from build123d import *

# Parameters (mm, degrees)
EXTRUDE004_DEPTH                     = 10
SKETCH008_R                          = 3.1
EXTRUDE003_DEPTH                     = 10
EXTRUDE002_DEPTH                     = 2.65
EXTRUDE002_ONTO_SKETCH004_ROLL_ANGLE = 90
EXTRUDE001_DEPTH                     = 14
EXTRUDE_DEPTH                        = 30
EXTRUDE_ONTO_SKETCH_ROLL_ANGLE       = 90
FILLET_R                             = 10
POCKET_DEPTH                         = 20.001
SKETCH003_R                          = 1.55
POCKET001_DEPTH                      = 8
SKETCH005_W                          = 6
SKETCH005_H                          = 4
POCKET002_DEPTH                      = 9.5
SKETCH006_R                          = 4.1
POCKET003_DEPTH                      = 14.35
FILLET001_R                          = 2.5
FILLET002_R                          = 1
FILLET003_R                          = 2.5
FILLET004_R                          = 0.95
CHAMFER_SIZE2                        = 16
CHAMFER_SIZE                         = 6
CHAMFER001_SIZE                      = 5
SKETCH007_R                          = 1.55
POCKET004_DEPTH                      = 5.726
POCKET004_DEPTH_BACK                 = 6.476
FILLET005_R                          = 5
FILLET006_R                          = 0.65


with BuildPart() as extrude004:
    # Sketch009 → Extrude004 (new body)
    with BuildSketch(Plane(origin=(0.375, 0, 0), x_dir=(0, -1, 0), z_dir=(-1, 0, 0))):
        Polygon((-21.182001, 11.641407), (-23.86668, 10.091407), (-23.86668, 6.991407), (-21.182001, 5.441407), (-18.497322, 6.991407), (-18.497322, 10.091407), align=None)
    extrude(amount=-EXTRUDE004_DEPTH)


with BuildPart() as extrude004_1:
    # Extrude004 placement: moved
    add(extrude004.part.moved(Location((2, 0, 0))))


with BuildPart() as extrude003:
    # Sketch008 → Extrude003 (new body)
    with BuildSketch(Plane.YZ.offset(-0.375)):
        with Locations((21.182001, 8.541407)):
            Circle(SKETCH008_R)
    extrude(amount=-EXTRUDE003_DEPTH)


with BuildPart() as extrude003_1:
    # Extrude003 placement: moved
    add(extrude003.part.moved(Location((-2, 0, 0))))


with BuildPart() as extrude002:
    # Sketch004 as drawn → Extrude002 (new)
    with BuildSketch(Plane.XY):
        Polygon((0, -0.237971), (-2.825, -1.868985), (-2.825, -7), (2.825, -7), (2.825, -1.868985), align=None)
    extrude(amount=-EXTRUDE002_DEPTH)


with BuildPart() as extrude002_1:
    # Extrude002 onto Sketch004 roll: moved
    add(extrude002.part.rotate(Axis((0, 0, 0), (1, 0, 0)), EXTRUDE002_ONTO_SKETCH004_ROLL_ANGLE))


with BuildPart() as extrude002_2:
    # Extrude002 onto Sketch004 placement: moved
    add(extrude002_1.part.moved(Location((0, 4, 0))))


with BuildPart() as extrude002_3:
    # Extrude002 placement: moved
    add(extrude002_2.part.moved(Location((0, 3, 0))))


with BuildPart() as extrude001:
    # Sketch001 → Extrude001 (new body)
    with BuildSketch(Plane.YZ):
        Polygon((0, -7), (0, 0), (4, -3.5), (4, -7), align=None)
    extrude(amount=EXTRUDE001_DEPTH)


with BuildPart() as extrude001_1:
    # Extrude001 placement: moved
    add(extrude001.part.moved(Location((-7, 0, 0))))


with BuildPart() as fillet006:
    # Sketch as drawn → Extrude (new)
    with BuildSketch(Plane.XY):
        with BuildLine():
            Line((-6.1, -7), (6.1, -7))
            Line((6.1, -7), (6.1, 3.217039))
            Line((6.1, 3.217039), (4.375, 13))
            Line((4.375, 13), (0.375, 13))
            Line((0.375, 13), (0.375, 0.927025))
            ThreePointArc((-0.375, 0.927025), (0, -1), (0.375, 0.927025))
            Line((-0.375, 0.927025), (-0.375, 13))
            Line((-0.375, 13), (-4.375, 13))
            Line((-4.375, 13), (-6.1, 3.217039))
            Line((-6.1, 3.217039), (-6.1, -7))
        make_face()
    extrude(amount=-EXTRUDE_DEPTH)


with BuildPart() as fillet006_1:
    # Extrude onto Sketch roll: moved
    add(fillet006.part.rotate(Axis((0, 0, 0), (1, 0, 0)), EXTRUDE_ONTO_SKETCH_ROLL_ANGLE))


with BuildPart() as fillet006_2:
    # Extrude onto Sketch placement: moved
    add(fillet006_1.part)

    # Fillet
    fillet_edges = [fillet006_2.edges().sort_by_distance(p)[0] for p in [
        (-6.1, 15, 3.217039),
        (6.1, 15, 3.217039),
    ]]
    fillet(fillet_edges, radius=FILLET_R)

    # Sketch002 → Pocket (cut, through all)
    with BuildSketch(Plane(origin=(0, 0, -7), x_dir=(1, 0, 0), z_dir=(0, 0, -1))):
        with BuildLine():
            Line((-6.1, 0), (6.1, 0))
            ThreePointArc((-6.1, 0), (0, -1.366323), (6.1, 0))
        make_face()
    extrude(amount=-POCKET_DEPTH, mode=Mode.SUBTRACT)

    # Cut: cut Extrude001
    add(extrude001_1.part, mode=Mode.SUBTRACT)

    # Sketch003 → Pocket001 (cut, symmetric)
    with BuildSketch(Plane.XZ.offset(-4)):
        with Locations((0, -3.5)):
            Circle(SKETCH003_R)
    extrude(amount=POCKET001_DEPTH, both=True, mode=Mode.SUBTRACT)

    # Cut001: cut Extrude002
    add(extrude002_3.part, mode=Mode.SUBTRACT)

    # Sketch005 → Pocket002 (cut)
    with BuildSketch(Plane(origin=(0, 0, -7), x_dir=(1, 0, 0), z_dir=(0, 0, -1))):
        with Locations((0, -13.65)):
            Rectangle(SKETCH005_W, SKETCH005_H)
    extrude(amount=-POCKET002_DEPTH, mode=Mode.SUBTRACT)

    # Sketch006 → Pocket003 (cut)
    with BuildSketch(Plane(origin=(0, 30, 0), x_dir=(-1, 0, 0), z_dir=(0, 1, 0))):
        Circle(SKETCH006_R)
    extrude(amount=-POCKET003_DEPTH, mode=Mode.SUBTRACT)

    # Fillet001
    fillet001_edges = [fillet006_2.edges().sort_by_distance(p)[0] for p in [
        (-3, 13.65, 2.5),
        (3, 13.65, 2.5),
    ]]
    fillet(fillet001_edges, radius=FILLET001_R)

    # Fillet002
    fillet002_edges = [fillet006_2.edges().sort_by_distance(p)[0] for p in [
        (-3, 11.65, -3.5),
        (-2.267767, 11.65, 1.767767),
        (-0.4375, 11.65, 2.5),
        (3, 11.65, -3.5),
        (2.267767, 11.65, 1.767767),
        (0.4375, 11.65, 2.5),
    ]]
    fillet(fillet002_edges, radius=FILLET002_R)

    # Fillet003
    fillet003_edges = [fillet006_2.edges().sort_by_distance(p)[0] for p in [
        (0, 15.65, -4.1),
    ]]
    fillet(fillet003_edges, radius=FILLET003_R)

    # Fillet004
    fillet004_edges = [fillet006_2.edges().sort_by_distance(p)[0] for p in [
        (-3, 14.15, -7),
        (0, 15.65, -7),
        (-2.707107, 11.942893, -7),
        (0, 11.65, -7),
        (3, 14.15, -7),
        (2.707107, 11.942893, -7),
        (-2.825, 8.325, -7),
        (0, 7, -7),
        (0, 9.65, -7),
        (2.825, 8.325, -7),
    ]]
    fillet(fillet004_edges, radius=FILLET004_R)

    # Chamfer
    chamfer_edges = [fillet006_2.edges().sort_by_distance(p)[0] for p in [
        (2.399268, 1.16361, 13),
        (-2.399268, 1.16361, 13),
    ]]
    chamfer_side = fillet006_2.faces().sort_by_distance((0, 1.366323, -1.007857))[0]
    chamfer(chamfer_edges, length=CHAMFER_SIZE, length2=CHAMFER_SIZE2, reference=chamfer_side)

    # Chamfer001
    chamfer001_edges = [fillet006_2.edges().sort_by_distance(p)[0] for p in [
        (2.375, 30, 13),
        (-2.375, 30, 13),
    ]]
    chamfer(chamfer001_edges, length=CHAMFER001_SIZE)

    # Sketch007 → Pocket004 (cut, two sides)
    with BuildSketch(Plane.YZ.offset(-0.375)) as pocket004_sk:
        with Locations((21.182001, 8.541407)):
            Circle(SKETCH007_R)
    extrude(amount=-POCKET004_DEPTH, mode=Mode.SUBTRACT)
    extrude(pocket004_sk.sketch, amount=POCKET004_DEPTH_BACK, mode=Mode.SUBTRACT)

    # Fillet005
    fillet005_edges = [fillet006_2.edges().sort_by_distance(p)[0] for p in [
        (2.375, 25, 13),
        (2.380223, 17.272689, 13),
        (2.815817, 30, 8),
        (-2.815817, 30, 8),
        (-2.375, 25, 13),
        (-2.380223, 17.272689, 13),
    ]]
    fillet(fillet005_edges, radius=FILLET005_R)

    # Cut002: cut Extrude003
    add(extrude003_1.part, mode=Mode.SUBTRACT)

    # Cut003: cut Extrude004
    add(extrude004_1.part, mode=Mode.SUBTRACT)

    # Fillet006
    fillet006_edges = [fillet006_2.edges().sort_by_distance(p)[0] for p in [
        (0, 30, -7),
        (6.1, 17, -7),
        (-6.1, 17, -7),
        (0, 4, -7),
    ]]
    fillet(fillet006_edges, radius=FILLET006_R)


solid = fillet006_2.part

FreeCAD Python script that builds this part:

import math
import FreeCAD as App
import Part
import Sketcher

V = App.Vector
Q = App.Units.Quantity


def edges_at(feature, points):
    """Names of the edges that pass closest to the given points."""
    edges = feature.Shape.Edges
    near = lambda p: min(range(len(edges)), key=lambda i: edges[i].distToShape(Part.Vertex(*p))[0])
    return sorted({f"Edge{near(p) + 1}" for p in points})

doc = App.newDocument("Part")
body = doc.addObject("PartDesign::Body", "Body")

# Sketch on YZ plane
sketch1 = body.newObject("Sketcher::SketchObject", "Sketch")
sketch1.AttachmentSupport = (doc.getObject("YZ_Plane"), [""])
sketch1.MapMode = "FlatFace"
sketch1.AttachmentOffset = App.Placement(V(0, 0, 0.375), App.Rotation())
sketch1.addGeometry(Part.LineSegment(V(21.2, 11.6, 0), V(23.9, 10.1, 0)), False)
sketch1.addGeometry(Part.LineSegment(V(23.9, 10.1, 0), V(23.9, 7, 0)), False)
sketch1.addGeometry(Part.LineSegment(V(23.9, 7, 0), V(21.2, 5.4, 0)), False)
sketch1.addGeometry(Part.LineSegment(V(21.2, 5.4, 0), V(18.5, 7, 0)), False)
sketch1.addGeometry(Part.LineSegment(V(18.5, 7, 0), V(18.5, 10.1, 0)), False)
sketch1.addGeometry(Part.LineSegment(V(18.5, 10.1, 0), V(21.2, 11.6, 0)), False)
sketch1.addConstraint(Sketcher.Constraint("Coincident", 0, 2, 1, 1))
sketch1.addConstraint(Sketcher.Constraint("Coincident", 1, 2, 2, 1))
sketch1.addConstraint(Sketcher.Constraint("Coincident", 2, 2, 3, 1))
sketch1.addConstraint(Sketcher.Constraint("Coincident", 3, 2, 4, 1))
sketch1.addConstraint(Sketcher.Constraint("Coincident", 4, 2, 5, 1))
sketch1.addConstraint(Sketcher.Constraint("Coincident", 5, 2, 0, 1))
sketch1.addConstraint(Sketcher.Constraint("Vertical", 1))
sketch1.addConstraint(Sketcher.Constraint("Vertical", 4))
sketch1.addConstraint(Sketcher.Constraint("Parallel", 0, 3))
sketch1.addConstraint(Sketcher.Constraint("Parallel", 2, 5))
sketch1.addConstraint(Sketcher.Constraint("Horizontal", 1, 2, 3, 2))
sketch1.addConstraint(Sketcher.Constraint("Horizontal", 0, 2, 4, 2))
sketch1.addConstraint(Sketcher.Constraint("Vertical", 2, 2, 5, 2))
sketch1.addConstraint(Sketcher.Constraint("Angle", 0, Q("-29.999998 deg")))
sketch1.addConstraint(Sketcher.Constraint("DistanceY", 1, 2, 1, 1, 3.1))
sketch1.addConstraint(Sketcher.Constraint("Distance", 0, 3.1))
sketch1.addConstraint(Sketcher.Constraint("DistanceX", -1, 1, 2, 2, 21.182001))
sketch1.addConstraint(Sketcher.Constraint("DistanceY", -1, 1, 0, 2, 10.091407))
pad1 = body.newObject("PartDesign::Pad", "Pad")
pad1.Profile = sketch1
pad1.Length = 10
body2 = doc.addObject("PartDesign::Body", "Body001")
doc.recompute()

body.Placement = App.Placement(V(2, 0, 0), App.Rotation(V(0, 0, 1), 0))
boolean = body2.newObject("PartDesign::Boolean", "Boolean")
boolean.Type = "Fuse"
boolean.addObjects([body])
body3 = doc.addObject("PartDesign::Body", "Body002")

# Sketch on YZ plane
sketch2 = body3.newObject("Sketcher::SketchObject", "Sketch001")
sketch2.AttachmentSupport = (doc.getObject("YZ_Plane002"), [""])
sketch2.MapMode = "FlatFace"
sketch2.AttachmentOffset = App.Placement(V(0, 0, -0.375), App.Rotation())
sketch2.addGeometry(Part.Circle(V(21.2, 8.5, 0), V(0, 0, 1), 3.1), False)
sketch2.addConstraint(Sketcher.Constraint("Diameter", 0, 6.2))
sketch2.addConstraint(Sketcher.Constraint("DistanceX", -1, 1, 0, 3, 21.182001))
sketch2.addConstraint(Sketcher.Constraint("DistanceY", -1, 1, 0, 3, 8.541407))
pad2 = body3.newObject("PartDesign::Pad", "Pad001")
pad2.Profile = sketch2
pad2.Length = 10
pad2.Reversed = True
body4 = doc.addObject("PartDesign::Body", "Body003")
doc.recompute()

body3.Placement = App.Placement(V(-2, 0, 0), App.Rotation(V(0, 0, 1), 0))
boolean2 = body4.newObject("PartDesign::Boolean", "Boolean001")
boolean2.Type = "Fuse"
boolean2.addObjects([body3])
body5 = doc.addObject("PartDesign::Body", "Body004")

# Sketch on XY plane
sketch3 = body5.newObject("Sketcher::SketchObject", "Sketch002")
sketch3.AttachmentSupport = (doc.getObject("XY_Plane004"), [""])
sketch3.MapMode = "FlatFace"
sketch3.addGeometry(Part.LineSegment(V(0, -0.2, 0), V(-2.8, -1.9, 0)), False)
sketch3.addGeometry(Part.LineSegment(V(-2.8, -1.9, 0), V(-2.8, -7, 0)), False)
sketch3.addGeometry(Part.LineSegment(V(-2.8, -7, 0), V(2.8, -7, 0)), False)
sketch3.addGeometry(Part.LineSegment(V(2.8, -7, 0), V(2.8, -1.9, 0)), False)
sketch3.addGeometry(Part.LineSegment(V(2.8, -1.9, 0), V(0, -0.2, 0)), False)
sketch3.addConstraint(Sketcher.Constraint("Coincident", 0, 2, 1, 1))
sketch3.addConstraint(Sketcher.Constraint("Coincident", 1, 2, 2, 1))
sketch3.addConstraint(Sketcher.Constraint("Coincident", 2, 2, 3, 1))
sketch3.addConstraint(Sketcher.Constraint("Coincident", 3, 2, 4, 1))
sketch3.addConstraint(Sketcher.Constraint("Coincident", 4, 2, 0, 1))
sketch3.addConstraint(Sketcher.Constraint("Vertical", 1))
sketch3.addConstraint(Sketcher.Constraint("Horizontal", 2))
sketch3.addConstraint(Sketcher.Constraint("Vertical", 3))
sketch3.addConstraint(Sketcher.Constraint("Symmetric", 0, 2, 3, 2, -2))
sketch3.addConstraint(Sketcher.Constraint("PointOnObject", 4, 2, -2))
sketch3.addConstraint(Sketcher.Constraint("Angle", 0, Q("-150.000008 deg")))
sketch3.addConstraint(Sketcher.Constraint("DistanceY", 1, 2, -1, 1, 7.0))
sketch3.addConstraint(Sketcher.Constraint("DistanceX", 2, 1, 2, 2, 5.65))
sketch3.addConstraint(Sketcher.Constraint("DistanceY", 1, 2, 1, 1, 5.131015))
pad3 = body5.newObject("PartDesign::Pad", "Pad002")
pad3.Profile = sketch3
pad3.Length = 2.65
pad3.Reversed = True
body6 = doc.addObject("PartDesign::Body", "Body005")
doc.recompute()

body5.Placement = App.Placement(V(0, 0, 0), App.Rotation(V(1, 0, 0), 90))
boolean3 = body6.newObject("PartDesign::Boolean", "Boolean002")
boolean3.Type = "Fuse"
boolean3.addObjects([body5])
body7 = doc.addObject("PartDesign::Body", "Body006")
doc.recompute()

body6.Placement = App.Placement(V(0, 4, 0), App.Rotation(V(0, 0, 1), 0))
boolean4 = body7.newObject("PartDesign::Boolean", "Boolean003")
boolean4.Type = "Fuse"
boolean4.addObjects([body6])
body8 = doc.addObject("PartDesign::Body", "Body007")
doc.recompute()

body7.Placement = App.Placement(V(0, 3, 0), App.Rotation(V(0, 0, 1), 0))
boolean5 = body8.newObject("PartDesign::Boolean", "Boolean004")
boolean5.Type = "Fuse"
boolean5.addObjects([body7])
body9 = doc.addObject("PartDesign::Body", "Body008")

# Sketch on YZ plane
sketch4 = body9.newObject("Sketcher::SketchObject", "Sketch003")
sketch4.AttachmentSupport = (doc.getObject("YZ_Plane008"), [""])
sketch4.MapMode = "FlatFace"
sketch4.addGeometry(Part.LineSegment(V(0, 0, 0), V(0, -7, 0)), False)
sketch4.addGeometry(Part.LineSegment(V(0, -7, 0), V(4, -7, 0)), False)
sketch4.addGeometry(Part.LineSegment(V(4, -7, 0), V(4, -3.5, 0)), False)
sketch4.addGeometry(Part.LineSegment(V(4, -3.5, 0), V(0, 0, 0)), False)
sketch4.addConstraint(Sketcher.Constraint("Coincident", 0, 2, 1, 1))
sketch4.addConstraint(Sketcher.Constraint("Coincident", 1, 2, 2, 1))
sketch4.addConstraint(Sketcher.Constraint("Coincident", 2, 2, 3, 1))
sketch4.addConstraint(Sketcher.Constraint("Coincident", 3, 2, 0, 1))
sketch4.addConstraint(Sketcher.Constraint("Vertical", 0))
sketch4.addConstraint(Sketcher.Constraint("Horizontal", 1))
sketch4.addConstraint(Sketcher.Constraint("Vertical", 2))
sketch4.addConstraint(Sketcher.Constraint("Coincident", 3, 2, -1, 1))
sketch4.addConstraint(Sketcher.Constraint("DistanceX", 1, 1, 1, 2, 4.0))
sketch4.addConstraint(Sketcher.Constraint("DistanceY", 0, 2, 0, 1, 7.0))
sketch4.addConstraint(Sketcher.Constraint("DistanceY", 2, 1, 2, 2, 3.5))
pad4 = body9.newObject("PartDesign::Pad", "Pad003")
pad4.Profile = sketch4
pad4.Length = 14
body10 = doc.addObject("PartDesign::Body", "Body009")
doc.recompute()

body9.Placement = App.Placement(V(-7, 0, 0), App.Rotation(V(0, 0, 1), 0))
boolean6 = body10.newObject("PartDesign::Boolean", "Boolean005")
boolean6.Type = "Fuse"
boolean6.addObjects([body9])
body11 = doc.addObject("PartDesign::Body", "Body010")

# Sketch on XY plane
sketch5 = body11.newObject("Sketcher::SketchObject", "Sketch004")
sketch5.AttachmentSupport = (doc.getObject("XY_Plane010"), [""])
sketch5.MapMode = "FlatFace"
sketch5.addGeometry(Part.LineSegment(V(-6.1, -7, 0), V(6.1, -7, 0)), False)
sketch5.addGeometry(Part.LineSegment(V(6.1, -7, 0), V(6.1, 3.2, 0)), False)
sketch5.addGeometry(Part.LineSegment(V(6.1, 3.2, 0), V(4.4, 13, 0)), False)
sketch5.addGeometry(Part.LineSegment(V(4.4, 13, 0), V(0.4, 13, 0)), False)
sketch5.addGeometry(Part.LineSegment(V(0.4, 13, 0), V(0.4, 0.9, 0)), False)
sketch5.addGeometry(Part.ArcOfCircle(Part.Circle(V(0, 0, 0), V(0, 0, 1), 1), math.radians(112), math.radians(428)), False)
sketch5.addGeometry(Part.LineSegment(V(-0.4, 0.9, 0), V(-0.4, 13, 0)), False)
sketch5.addGeometry(Part.LineSegment(V(-0.4, 13, 0), V(-4.4, 13, 0)), False)
sketch5.addGeometry(Part.LineSegment(V(-4.4, 13, 0), V(-6.1, 3.2, 0)), False)
sketch5.addGeometry(Part.LineSegment(V(-6.1, 3.2, 0), V(-6.1, -7, 0)), False)
sketch5.addConstraint(Sketcher.Constraint("Coincident", 0, 2, 1, 1))
sketch5.addConstraint(Sketcher.Constraint("Coincident", 1, 2, 2, 1))
sketch5.addConstraint(Sketcher.Constraint("Coincident", 2, 2, 3, 1))
sketch5.addConstraint(Sketcher.Constraint("Coincident", 3, 2, 4, 1))
sketch5.addConstraint(Sketcher.Constraint("Coincident", 4, 2, 5, 2))
sketch5.addConstraint(Sketcher.Constraint("Coincident", 5, 1, 6, 1))
sketch5.addConstraint(Sketcher.Constraint("Coincident", 6, 2, 7, 1))
sketch5.addConstraint(Sketcher.Constraint("Coincident", 7, 2, 8, 1))
sketch5.addConstraint(Sketcher.Constraint("Coincident", 8, 2, 9, 1))
sketch5.addConstraint(Sketcher.Constraint("Coincident", 9, 2, 0, 1))
sketch5.addConstraint(Sketcher.Constraint("Horizontal", 0))
sketch5.addConstraint(Sketcher.Constraint("Vertical", 1))
sketch5.addConstraint(Sketcher.Constraint("Horizontal", 3))
sketch5.addConstraint(Sketcher.Constraint("Vertical", 4))
sketch5.addConstraint(Sketcher.Constraint("Vertical", 6))
sketch5.addConstraint(Sketcher.Constraint("Horizontal", 7))
sketch5.addConstraint(Sketcher.Constraint("Vertical", 9))
sketch5.addConstraint(Sketcher.Constraint("Coincident", 5, 3, -1, 1))
sketch5.addConstraint(Sketcher.Constraint("Symmetric", 3, 2, 6, 2, -2))
sketch5.addConstraint(Sketcher.Constraint("Symmetric", 1, 2, 8, 2, -2))
sketch5.addConstraint(Sketcher.Constraint("Equal", 3, 7))
sketch5.addConstraint(Sketcher.Constraint("Radius", 5, 1.0))
sketch5.addConstraint(Sketcher.Constraint("DistanceX", 3, 2, 3, 1, 4.0))
sketch5.addConstraint(Sketcher.Constraint("Angle", 2, Q("100 deg")))
sketch5.addConstraint(Sketcher.Constraint("DistanceX", 0, 1, 0, 2, 12.2))
sketch5.addConstraint(Sketcher.Constraint("DistanceY", 0, 2, -1, 1, 7.0))
sketch5.addConstraint(Sketcher.Constraint("DistanceY", -1, 1, 2, 2, 13.0))
sketch5.addConstraint(Sketcher.Constraint("DistanceX", 5, 1, 4, 2, 0.75))
pad5 = body11.newObject("PartDesign::Pad", "Pad004")
pad5.Profile = sketch5
pad5.Length = 30
pad5.Reversed = True
body12 = doc.addObject("PartDesign::Body", "Body011")
doc.recompute()

body11.Placement = App.Placement(V(0, 0, 0), App.Rotation(V(1, 0, 0), 90))
boolean7 = body12.newObject("PartDesign::Boolean", "Boolean006")
boolean7.Type = "Fuse"
boolean7.addObjects([body11])
doc.recompute()

fillet = body12.newObject("PartDesign::Fillet", "Fillet")
fillet.Base = (boolean7, edges_at(boolean7, [(-6.1, 15, 3.217), (6.1, 15, 3.217)]))
fillet.Radius = 10

# Sketch on XY plane
sketch6 = body12.newObject("Sketcher::SketchObject", "Sketch005")
sketch6.AttachmentSupport = (doc.getObject("XY_Plane011"), [""])
sketch6.MapMode = "FlatFace"
sketch6.AttachmentOffset = App.Placement(V(0, 0, -7), App.Rotation())
sketch6.addGeometry(Part.LineSegment(V(6, 0, 0), V(-6, 0, 0)), False)
sketch6.addGeometry(Part.ArcOfCircle(Part.Circle(V(0, -13, 0), V(0, 0, 1), 14), math.radians(65), math.radians(115)), False)
sketch6.addConstraint(Sketcher.Constraint("Coincident", 0, 1, 1, 1))
sketch6.addConstraint(Sketcher.Constraint("Coincident", 1, 2, 0, 2))
sketch6.addConstraint(Sketcher.Constraint("Horizontal", 0))
sketch6.addConstraint(Sketcher.Constraint("Symmetric", 0, 1, 1, 2, -1, 1))
sketch6.addConstraint(Sketcher.Constraint("Radius", 1, 14.3))
sketch6.addConstraint(Sketcher.Constraint("DistanceX", 0, 2, 0, 1, 12.2))
pocket1 = body12.newObject("PartDesign::Pocket", "Pocket")
pocket1.Profile = sketch6
pocket1.Type = "ThroughAll"
pocket1.Reversed = True
doc.recompute()

boolean8 = body12.newObject("PartDesign::Boolean", "Boolean007")
boolean8.Type = "Cut"
boolean8.addObjects([body10])

# Sketch on XZ plane
sketch7 = body12.newObject("Sketcher::SketchObject", "Sketch006")
sketch7.AttachmentSupport = (doc.getObject("XZ_Plane011"), [""])
sketch7.MapMode = "FlatFace"
sketch7.AttachmentOffset = App.Placement(V(0, 0, -4), App.Rotation())
sketch7.addGeometry(Part.Circle(V(0, -3.5, 0), V(0, 0, 1), 1.6), False)
sketch7.addConstraint(Sketcher.Constraint("PointOnObject", 0, 3, -2))
sketch7.addConstraint(Sketcher.Constraint("Diameter", 0, 3.1))
sketch7.addConstraint(Sketcher.Constraint("DistanceY", 0, 3, -1, 1, 3.5))
pocket2 = body12.newObject("PartDesign::Pocket", "Pocket001")
pocket2.Profile = sketch7
pocket2.Length = 16
pocket2.Midplane = True
doc.recompute()

boolean9 = body12.newObject("PartDesign::Boolean", "Boolean008")
boolean9.Type = "Cut"
boolean9.addObjects([body8])

# Sketch on XY plane
sketch8 = body12.newObject("Sketcher::SketchObject", "Sketch007")
sketch8.AttachmentSupport = (doc.getObject("XY_Plane011"), [""])
sketch8.MapMode = "FlatFace"
sketch8.AttachmentOffset = App.Placement(V(0, 0, -7), App.Rotation())
sketch8.addGeometry(Part.LineSegment(V(-3, 11.7, 0), V(-3, 15.7, 0)), False)
sketch8.addGeometry(Part.LineSegment(V(-3, 15.7, 0), V(3, 15.7, 0)), False)
sketch8.addGeometry(Part.LineSegment(V(3, 15.7, 0), V(3, 11.7, 0)), False)
sketch8.addGeometry(Part.LineSegment(V(3, 11.7, 0), V(-3, 11.7, 0)), False)
sketch8.addConstraint(Sketcher.Constraint("Coincident", 0, 2, 1, 1))
sketch8.addConstraint(Sketcher.Constraint("Coincident", 1, 2, 2, 1))
sketch8.addConstraint(Sketcher.Constraint("Coincident", 2, 2, 3, 1))
sketch8.addConstraint(Sketcher.Constraint("Coincident", 3, 2, 0, 1))
sketch8.addConstraint(Sketcher.Constraint("Vertical", 0))
sketch8.addConstraint(Sketcher.Constraint("Horizontal", 1))
sketch8.addConstraint(Sketcher.Constraint("Vertical", 2))
sketch8.addConstraint(Sketcher.Constraint("Horizontal", 3))
sketch8.addConstraint(Sketcher.Constraint("DistanceX", 1, 1, 1, 2, 6.0))
sketch8.addConstraint(Sketcher.Constraint("DistanceY", 0, 1, 0, 2, 4.0))
sketch8.addConstraint(Sketcher.Constraint("DistanceX", 0, 2, -1, 1, 3.0))
sketch8.addConstraint(Sketcher.Constraint("DistanceY", -1, 1, 0, 2, 15.65))
pocket3 = body12.newObject("PartDesign::Pocket", "Pocket002")
pocket3.Profile = sketch8
pocket3.Length = 9.5
pocket3.Reversed = True

# Sketch on XZ plane
sketch9 = body12.newObject("Sketcher::SketchObject", "Sketch008")
sketch9.AttachmentSupport = (doc.getObject("XZ_Plane011"), [""])
sketch9.MapMode = "FlatFace"
sketch9.AttachmentOffset = App.Placement(V(0, 0, -30), App.Rotation())
sketch9.addGeometry(Part.Circle(V(0, 0, 0), V(0, 0, 1), 4.1), False)
sketch9.addConstraint(Sketcher.Constraint("Coincident", 0, 3, -1, 1))
sketch9.addConstraint(Sketcher.Constraint("Diameter", 0, 8.2))
pocket4 = body12.newObject("PartDesign::Pocket", "Pocket003")
pocket4.Profile = sketch9
pocket4.Length = 14.35
pocket4.Reversed = True
doc.recompute()

fillet2 = body12.newObject("PartDesign::Fillet", "Fillet001")
fillet2.Base = (pocket4, edges_at(pocket4, [(-3, 13.65, 2.5), (3, 13.65, 2.5)]))
fillet2.Radius = 2.5
doc.recompute()

fillet3 = body12.newObject("PartDesign::Fillet", "Fillet002")
fillet3.Base = (fillet2, edges_at(fillet2, [
    (-3, 11.65, -3.5),
    (-2.268, 11.65, 1.768),
    (-0.438, 11.65, 2.5),
    (3, 11.65, -3.5),
    (2.268, 11.65, 1.768),
    (0.438, 11.65, 2.5),
]))
fillet3.Radius = 1
doc.recompute()

fillet4 = body12.newObject("PartDesign::Fillet", "Fillet003")
fillet4.Base = (fillet3, edges_at(fillet3, [(0, 15.65, -4.1)]))
fillet4.Radius = 2.5
doc.recompute()

fillet5 = body12.newObject("PartDesign::Fillet", "Fillet004")
fillet5.Base = (fillet4, edges_at(fillet4, [
    (-3, 14.15, -7),
    (0, 15.65, -7),
    (-2.707, 11.943, -7),
    (0, 11.65, -7),
    (3, 14.15, -7),
    (2.707, 11.943, -7),
    (-2.825, 8.325, -7),
    (0, 7, -7),
    (0, 9.65, -7),
    (2.825, 8.325, -7),
]))
fillet5.Radius = 0.95
doc.recompute()

chamfer = body12.newObject("PartDesign::Chamfer", "Chamfer")
chamfer.Base = (fillet5, edges_at(fillet5, [(2.399, 1.164, 13), (-2.399, 1.164, 13)]))
chamfer.ChamferType = "Two distances"
chamfer.Size = 6
chamfer.Size2 = 16
doc.recompute()

chamfer2 = body12.newObject("PartDesign::Chamfer", "Chamfer001")
chamfer2.Base = (chamfer, edges_at(chamfer, [(2.375, 30, 13), (-2.375, 30, 13)]))
chamfer2.Size = 5

# Sketch on YZ plane
sketch10 = body12.newObject("Sketcher::SketchObject", "Sketch009")
sketch10.AttachmentSupport = (doc.getObject("YZ_Plane011"), [""])
sketch10.MapMode = "FlatFace"
sketch10.AttachmentOffset = App.Placement(V(0, 0, -0.375), App.Rotation())
sketch10.addGeometry(Part.Circle(V(21.2, 8.5, 0), V(0, 0, 1), 1.6), False)
sketch10.addConstraint(Sketcher.Constraint("Diameter", 0, 3.1))
sketch10.addConstraint(Sketcher.Constraint("DistanceX", -1, 1, 0, 3, 21.182001))
sketch10.addConstraint(Sketcher.Constraint("DistanceY", -1, 1, 0, 3, 8.541407))
pocket5 = body12.newObject("PartDesign::Pocket", "Pocket004")
pocket5.Profile = sketch10
pocket5.Type = "ThroughAll"
pocket5.Midplane = True
doc.recompute()

fillet6 = body12.newObject("PartDesign::Fillet", "Fillet005")
fillet6.Base = (pocket5, edges_at(pocket5, [
    (2.375, 25, 13),
    (2.38, 17.273, 13),
    (2.816, 30, 8),
    (-2.816, 30, 8),
    (-2.375, 25, 13),
    (-2.38, 17.273, 13),
]))
fillet6.Radius = 5
doc.recompute()

boolean10 = body12.newObject("PartDesign::Boolean", "Boolean009")
boolean10.Type = "Cut"
boolean10.addObjects([body4])
doc.recompute()

boolean11 = body12.newObject("PartDesign::Boolean", "Boolean010")
boolean11.Type = "Cut"
boolean11.addObjects([body2])
doc.recompute()

fillet7 = body12.newObject("PartDesign::Fillet", "Fillet006")
fillet7.Base = (boolean11, edges_at(boolean11, [
    (0, 30, -7),
    (6.1, 17, -7),
    (-6.1, 17, -7),
    (0, 4, -7),
]))
fillet7.Radius = 0.65

doc.recompute()
